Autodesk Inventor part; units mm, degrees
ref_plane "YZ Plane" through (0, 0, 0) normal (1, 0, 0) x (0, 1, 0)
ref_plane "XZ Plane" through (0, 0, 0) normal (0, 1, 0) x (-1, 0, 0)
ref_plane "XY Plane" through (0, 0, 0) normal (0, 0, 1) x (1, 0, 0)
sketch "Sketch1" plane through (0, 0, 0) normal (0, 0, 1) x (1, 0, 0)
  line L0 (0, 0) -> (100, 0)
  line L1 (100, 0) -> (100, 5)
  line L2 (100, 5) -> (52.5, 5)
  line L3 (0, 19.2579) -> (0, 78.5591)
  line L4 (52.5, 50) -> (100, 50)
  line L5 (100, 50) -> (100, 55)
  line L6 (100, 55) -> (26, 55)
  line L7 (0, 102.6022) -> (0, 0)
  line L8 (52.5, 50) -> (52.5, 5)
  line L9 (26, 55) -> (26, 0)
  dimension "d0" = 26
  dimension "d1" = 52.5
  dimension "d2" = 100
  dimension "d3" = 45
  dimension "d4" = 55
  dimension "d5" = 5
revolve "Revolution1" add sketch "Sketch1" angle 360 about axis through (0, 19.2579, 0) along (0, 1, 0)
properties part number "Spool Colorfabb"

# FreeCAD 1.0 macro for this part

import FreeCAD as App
import Part
import Sketcher
from FreeCAD import Vector


def add_polygon(sketch, points):
    """Adds a closed chain of lines whose ends are joined by coincident constraints."""
    first, n = sketch.GeometryCount, len(points)
    for a, b in zip(points, points[1:] + points[:1]):
        sketch.addGeometry(Part.LineSegment(App.Vector(*a, 0), App.Vector(*b, 0)), False)
    for i in range(n):
        sketch.addConstraint(Sketcher.Constraint("Coincident", first + i, 2, first + (i + 1) % n, 1))

doc = App.newDocument("Part")
body = doc.addObject("PartDesign::Body", "Body")

# Sketch on XY plane
sketch1 = doc.addObject("Sketcher::SketchObject", "Sketch")
body.addObject(sketch1)
sketch1.AttachmentSupport = (doc.XY_Plane, [""])
sketch1.MapMode = "FlatFace"
add_polygon(sketch1, [(26, 55), (26, 0), (100, 0), (100, 5), (52.5, 5), (52.5, 50), (100, 50), (100, 55)])  # lines 0-7
sketch1.addConstraint([
    Sketcher.Constraint("Vertical", 0),
    Sketcher.Constraint("Horizontal", 1),
    Sketcher.Constraint("Vertical", 2),
    Sketcher.Constraint("Horizontal", 3),
    Sketcher.Constraint("Vertical", 4),
    Sketcher.Constraint("Horizontal", 5),
    Sketcher.Constraint("Vertical", 6),
    Sketcher.Constraint("Horizontal", 7),
    Sketcher.Constraint("PointOnObject", 0, 2, -1),
    Sketcher.Constraint("Vertical", 2, 2, 5, 2),
    Sketcher.Constraint("Equal", 2, 6),
    Sketcher.Constraint("DistanceY", 0, 2, 0, 1, 55.0),
    Sketcher.Constraint("DistanceY", 2, 1, 2, 2, 5.0),
    Sketcher.Constraint("DistanceX", -1, 1, 0, 2, 26.0),
    Sketcher.Constraint("DistanceX", -1, 1, 1, 2, 100.0),
    Sketcher.Constraint("DistanceX", -1, 1, 3, 2, 52.5),
])
revolution = doc.addObject("PartDesign::Revolution", "Revolution")
body.addObject(revolution)
revolution.Profile = sketch1
revolution.ReferenceAxis = (sketch1, ["V_Axis"])
revolution.Angle = 360

doc.recompute()
